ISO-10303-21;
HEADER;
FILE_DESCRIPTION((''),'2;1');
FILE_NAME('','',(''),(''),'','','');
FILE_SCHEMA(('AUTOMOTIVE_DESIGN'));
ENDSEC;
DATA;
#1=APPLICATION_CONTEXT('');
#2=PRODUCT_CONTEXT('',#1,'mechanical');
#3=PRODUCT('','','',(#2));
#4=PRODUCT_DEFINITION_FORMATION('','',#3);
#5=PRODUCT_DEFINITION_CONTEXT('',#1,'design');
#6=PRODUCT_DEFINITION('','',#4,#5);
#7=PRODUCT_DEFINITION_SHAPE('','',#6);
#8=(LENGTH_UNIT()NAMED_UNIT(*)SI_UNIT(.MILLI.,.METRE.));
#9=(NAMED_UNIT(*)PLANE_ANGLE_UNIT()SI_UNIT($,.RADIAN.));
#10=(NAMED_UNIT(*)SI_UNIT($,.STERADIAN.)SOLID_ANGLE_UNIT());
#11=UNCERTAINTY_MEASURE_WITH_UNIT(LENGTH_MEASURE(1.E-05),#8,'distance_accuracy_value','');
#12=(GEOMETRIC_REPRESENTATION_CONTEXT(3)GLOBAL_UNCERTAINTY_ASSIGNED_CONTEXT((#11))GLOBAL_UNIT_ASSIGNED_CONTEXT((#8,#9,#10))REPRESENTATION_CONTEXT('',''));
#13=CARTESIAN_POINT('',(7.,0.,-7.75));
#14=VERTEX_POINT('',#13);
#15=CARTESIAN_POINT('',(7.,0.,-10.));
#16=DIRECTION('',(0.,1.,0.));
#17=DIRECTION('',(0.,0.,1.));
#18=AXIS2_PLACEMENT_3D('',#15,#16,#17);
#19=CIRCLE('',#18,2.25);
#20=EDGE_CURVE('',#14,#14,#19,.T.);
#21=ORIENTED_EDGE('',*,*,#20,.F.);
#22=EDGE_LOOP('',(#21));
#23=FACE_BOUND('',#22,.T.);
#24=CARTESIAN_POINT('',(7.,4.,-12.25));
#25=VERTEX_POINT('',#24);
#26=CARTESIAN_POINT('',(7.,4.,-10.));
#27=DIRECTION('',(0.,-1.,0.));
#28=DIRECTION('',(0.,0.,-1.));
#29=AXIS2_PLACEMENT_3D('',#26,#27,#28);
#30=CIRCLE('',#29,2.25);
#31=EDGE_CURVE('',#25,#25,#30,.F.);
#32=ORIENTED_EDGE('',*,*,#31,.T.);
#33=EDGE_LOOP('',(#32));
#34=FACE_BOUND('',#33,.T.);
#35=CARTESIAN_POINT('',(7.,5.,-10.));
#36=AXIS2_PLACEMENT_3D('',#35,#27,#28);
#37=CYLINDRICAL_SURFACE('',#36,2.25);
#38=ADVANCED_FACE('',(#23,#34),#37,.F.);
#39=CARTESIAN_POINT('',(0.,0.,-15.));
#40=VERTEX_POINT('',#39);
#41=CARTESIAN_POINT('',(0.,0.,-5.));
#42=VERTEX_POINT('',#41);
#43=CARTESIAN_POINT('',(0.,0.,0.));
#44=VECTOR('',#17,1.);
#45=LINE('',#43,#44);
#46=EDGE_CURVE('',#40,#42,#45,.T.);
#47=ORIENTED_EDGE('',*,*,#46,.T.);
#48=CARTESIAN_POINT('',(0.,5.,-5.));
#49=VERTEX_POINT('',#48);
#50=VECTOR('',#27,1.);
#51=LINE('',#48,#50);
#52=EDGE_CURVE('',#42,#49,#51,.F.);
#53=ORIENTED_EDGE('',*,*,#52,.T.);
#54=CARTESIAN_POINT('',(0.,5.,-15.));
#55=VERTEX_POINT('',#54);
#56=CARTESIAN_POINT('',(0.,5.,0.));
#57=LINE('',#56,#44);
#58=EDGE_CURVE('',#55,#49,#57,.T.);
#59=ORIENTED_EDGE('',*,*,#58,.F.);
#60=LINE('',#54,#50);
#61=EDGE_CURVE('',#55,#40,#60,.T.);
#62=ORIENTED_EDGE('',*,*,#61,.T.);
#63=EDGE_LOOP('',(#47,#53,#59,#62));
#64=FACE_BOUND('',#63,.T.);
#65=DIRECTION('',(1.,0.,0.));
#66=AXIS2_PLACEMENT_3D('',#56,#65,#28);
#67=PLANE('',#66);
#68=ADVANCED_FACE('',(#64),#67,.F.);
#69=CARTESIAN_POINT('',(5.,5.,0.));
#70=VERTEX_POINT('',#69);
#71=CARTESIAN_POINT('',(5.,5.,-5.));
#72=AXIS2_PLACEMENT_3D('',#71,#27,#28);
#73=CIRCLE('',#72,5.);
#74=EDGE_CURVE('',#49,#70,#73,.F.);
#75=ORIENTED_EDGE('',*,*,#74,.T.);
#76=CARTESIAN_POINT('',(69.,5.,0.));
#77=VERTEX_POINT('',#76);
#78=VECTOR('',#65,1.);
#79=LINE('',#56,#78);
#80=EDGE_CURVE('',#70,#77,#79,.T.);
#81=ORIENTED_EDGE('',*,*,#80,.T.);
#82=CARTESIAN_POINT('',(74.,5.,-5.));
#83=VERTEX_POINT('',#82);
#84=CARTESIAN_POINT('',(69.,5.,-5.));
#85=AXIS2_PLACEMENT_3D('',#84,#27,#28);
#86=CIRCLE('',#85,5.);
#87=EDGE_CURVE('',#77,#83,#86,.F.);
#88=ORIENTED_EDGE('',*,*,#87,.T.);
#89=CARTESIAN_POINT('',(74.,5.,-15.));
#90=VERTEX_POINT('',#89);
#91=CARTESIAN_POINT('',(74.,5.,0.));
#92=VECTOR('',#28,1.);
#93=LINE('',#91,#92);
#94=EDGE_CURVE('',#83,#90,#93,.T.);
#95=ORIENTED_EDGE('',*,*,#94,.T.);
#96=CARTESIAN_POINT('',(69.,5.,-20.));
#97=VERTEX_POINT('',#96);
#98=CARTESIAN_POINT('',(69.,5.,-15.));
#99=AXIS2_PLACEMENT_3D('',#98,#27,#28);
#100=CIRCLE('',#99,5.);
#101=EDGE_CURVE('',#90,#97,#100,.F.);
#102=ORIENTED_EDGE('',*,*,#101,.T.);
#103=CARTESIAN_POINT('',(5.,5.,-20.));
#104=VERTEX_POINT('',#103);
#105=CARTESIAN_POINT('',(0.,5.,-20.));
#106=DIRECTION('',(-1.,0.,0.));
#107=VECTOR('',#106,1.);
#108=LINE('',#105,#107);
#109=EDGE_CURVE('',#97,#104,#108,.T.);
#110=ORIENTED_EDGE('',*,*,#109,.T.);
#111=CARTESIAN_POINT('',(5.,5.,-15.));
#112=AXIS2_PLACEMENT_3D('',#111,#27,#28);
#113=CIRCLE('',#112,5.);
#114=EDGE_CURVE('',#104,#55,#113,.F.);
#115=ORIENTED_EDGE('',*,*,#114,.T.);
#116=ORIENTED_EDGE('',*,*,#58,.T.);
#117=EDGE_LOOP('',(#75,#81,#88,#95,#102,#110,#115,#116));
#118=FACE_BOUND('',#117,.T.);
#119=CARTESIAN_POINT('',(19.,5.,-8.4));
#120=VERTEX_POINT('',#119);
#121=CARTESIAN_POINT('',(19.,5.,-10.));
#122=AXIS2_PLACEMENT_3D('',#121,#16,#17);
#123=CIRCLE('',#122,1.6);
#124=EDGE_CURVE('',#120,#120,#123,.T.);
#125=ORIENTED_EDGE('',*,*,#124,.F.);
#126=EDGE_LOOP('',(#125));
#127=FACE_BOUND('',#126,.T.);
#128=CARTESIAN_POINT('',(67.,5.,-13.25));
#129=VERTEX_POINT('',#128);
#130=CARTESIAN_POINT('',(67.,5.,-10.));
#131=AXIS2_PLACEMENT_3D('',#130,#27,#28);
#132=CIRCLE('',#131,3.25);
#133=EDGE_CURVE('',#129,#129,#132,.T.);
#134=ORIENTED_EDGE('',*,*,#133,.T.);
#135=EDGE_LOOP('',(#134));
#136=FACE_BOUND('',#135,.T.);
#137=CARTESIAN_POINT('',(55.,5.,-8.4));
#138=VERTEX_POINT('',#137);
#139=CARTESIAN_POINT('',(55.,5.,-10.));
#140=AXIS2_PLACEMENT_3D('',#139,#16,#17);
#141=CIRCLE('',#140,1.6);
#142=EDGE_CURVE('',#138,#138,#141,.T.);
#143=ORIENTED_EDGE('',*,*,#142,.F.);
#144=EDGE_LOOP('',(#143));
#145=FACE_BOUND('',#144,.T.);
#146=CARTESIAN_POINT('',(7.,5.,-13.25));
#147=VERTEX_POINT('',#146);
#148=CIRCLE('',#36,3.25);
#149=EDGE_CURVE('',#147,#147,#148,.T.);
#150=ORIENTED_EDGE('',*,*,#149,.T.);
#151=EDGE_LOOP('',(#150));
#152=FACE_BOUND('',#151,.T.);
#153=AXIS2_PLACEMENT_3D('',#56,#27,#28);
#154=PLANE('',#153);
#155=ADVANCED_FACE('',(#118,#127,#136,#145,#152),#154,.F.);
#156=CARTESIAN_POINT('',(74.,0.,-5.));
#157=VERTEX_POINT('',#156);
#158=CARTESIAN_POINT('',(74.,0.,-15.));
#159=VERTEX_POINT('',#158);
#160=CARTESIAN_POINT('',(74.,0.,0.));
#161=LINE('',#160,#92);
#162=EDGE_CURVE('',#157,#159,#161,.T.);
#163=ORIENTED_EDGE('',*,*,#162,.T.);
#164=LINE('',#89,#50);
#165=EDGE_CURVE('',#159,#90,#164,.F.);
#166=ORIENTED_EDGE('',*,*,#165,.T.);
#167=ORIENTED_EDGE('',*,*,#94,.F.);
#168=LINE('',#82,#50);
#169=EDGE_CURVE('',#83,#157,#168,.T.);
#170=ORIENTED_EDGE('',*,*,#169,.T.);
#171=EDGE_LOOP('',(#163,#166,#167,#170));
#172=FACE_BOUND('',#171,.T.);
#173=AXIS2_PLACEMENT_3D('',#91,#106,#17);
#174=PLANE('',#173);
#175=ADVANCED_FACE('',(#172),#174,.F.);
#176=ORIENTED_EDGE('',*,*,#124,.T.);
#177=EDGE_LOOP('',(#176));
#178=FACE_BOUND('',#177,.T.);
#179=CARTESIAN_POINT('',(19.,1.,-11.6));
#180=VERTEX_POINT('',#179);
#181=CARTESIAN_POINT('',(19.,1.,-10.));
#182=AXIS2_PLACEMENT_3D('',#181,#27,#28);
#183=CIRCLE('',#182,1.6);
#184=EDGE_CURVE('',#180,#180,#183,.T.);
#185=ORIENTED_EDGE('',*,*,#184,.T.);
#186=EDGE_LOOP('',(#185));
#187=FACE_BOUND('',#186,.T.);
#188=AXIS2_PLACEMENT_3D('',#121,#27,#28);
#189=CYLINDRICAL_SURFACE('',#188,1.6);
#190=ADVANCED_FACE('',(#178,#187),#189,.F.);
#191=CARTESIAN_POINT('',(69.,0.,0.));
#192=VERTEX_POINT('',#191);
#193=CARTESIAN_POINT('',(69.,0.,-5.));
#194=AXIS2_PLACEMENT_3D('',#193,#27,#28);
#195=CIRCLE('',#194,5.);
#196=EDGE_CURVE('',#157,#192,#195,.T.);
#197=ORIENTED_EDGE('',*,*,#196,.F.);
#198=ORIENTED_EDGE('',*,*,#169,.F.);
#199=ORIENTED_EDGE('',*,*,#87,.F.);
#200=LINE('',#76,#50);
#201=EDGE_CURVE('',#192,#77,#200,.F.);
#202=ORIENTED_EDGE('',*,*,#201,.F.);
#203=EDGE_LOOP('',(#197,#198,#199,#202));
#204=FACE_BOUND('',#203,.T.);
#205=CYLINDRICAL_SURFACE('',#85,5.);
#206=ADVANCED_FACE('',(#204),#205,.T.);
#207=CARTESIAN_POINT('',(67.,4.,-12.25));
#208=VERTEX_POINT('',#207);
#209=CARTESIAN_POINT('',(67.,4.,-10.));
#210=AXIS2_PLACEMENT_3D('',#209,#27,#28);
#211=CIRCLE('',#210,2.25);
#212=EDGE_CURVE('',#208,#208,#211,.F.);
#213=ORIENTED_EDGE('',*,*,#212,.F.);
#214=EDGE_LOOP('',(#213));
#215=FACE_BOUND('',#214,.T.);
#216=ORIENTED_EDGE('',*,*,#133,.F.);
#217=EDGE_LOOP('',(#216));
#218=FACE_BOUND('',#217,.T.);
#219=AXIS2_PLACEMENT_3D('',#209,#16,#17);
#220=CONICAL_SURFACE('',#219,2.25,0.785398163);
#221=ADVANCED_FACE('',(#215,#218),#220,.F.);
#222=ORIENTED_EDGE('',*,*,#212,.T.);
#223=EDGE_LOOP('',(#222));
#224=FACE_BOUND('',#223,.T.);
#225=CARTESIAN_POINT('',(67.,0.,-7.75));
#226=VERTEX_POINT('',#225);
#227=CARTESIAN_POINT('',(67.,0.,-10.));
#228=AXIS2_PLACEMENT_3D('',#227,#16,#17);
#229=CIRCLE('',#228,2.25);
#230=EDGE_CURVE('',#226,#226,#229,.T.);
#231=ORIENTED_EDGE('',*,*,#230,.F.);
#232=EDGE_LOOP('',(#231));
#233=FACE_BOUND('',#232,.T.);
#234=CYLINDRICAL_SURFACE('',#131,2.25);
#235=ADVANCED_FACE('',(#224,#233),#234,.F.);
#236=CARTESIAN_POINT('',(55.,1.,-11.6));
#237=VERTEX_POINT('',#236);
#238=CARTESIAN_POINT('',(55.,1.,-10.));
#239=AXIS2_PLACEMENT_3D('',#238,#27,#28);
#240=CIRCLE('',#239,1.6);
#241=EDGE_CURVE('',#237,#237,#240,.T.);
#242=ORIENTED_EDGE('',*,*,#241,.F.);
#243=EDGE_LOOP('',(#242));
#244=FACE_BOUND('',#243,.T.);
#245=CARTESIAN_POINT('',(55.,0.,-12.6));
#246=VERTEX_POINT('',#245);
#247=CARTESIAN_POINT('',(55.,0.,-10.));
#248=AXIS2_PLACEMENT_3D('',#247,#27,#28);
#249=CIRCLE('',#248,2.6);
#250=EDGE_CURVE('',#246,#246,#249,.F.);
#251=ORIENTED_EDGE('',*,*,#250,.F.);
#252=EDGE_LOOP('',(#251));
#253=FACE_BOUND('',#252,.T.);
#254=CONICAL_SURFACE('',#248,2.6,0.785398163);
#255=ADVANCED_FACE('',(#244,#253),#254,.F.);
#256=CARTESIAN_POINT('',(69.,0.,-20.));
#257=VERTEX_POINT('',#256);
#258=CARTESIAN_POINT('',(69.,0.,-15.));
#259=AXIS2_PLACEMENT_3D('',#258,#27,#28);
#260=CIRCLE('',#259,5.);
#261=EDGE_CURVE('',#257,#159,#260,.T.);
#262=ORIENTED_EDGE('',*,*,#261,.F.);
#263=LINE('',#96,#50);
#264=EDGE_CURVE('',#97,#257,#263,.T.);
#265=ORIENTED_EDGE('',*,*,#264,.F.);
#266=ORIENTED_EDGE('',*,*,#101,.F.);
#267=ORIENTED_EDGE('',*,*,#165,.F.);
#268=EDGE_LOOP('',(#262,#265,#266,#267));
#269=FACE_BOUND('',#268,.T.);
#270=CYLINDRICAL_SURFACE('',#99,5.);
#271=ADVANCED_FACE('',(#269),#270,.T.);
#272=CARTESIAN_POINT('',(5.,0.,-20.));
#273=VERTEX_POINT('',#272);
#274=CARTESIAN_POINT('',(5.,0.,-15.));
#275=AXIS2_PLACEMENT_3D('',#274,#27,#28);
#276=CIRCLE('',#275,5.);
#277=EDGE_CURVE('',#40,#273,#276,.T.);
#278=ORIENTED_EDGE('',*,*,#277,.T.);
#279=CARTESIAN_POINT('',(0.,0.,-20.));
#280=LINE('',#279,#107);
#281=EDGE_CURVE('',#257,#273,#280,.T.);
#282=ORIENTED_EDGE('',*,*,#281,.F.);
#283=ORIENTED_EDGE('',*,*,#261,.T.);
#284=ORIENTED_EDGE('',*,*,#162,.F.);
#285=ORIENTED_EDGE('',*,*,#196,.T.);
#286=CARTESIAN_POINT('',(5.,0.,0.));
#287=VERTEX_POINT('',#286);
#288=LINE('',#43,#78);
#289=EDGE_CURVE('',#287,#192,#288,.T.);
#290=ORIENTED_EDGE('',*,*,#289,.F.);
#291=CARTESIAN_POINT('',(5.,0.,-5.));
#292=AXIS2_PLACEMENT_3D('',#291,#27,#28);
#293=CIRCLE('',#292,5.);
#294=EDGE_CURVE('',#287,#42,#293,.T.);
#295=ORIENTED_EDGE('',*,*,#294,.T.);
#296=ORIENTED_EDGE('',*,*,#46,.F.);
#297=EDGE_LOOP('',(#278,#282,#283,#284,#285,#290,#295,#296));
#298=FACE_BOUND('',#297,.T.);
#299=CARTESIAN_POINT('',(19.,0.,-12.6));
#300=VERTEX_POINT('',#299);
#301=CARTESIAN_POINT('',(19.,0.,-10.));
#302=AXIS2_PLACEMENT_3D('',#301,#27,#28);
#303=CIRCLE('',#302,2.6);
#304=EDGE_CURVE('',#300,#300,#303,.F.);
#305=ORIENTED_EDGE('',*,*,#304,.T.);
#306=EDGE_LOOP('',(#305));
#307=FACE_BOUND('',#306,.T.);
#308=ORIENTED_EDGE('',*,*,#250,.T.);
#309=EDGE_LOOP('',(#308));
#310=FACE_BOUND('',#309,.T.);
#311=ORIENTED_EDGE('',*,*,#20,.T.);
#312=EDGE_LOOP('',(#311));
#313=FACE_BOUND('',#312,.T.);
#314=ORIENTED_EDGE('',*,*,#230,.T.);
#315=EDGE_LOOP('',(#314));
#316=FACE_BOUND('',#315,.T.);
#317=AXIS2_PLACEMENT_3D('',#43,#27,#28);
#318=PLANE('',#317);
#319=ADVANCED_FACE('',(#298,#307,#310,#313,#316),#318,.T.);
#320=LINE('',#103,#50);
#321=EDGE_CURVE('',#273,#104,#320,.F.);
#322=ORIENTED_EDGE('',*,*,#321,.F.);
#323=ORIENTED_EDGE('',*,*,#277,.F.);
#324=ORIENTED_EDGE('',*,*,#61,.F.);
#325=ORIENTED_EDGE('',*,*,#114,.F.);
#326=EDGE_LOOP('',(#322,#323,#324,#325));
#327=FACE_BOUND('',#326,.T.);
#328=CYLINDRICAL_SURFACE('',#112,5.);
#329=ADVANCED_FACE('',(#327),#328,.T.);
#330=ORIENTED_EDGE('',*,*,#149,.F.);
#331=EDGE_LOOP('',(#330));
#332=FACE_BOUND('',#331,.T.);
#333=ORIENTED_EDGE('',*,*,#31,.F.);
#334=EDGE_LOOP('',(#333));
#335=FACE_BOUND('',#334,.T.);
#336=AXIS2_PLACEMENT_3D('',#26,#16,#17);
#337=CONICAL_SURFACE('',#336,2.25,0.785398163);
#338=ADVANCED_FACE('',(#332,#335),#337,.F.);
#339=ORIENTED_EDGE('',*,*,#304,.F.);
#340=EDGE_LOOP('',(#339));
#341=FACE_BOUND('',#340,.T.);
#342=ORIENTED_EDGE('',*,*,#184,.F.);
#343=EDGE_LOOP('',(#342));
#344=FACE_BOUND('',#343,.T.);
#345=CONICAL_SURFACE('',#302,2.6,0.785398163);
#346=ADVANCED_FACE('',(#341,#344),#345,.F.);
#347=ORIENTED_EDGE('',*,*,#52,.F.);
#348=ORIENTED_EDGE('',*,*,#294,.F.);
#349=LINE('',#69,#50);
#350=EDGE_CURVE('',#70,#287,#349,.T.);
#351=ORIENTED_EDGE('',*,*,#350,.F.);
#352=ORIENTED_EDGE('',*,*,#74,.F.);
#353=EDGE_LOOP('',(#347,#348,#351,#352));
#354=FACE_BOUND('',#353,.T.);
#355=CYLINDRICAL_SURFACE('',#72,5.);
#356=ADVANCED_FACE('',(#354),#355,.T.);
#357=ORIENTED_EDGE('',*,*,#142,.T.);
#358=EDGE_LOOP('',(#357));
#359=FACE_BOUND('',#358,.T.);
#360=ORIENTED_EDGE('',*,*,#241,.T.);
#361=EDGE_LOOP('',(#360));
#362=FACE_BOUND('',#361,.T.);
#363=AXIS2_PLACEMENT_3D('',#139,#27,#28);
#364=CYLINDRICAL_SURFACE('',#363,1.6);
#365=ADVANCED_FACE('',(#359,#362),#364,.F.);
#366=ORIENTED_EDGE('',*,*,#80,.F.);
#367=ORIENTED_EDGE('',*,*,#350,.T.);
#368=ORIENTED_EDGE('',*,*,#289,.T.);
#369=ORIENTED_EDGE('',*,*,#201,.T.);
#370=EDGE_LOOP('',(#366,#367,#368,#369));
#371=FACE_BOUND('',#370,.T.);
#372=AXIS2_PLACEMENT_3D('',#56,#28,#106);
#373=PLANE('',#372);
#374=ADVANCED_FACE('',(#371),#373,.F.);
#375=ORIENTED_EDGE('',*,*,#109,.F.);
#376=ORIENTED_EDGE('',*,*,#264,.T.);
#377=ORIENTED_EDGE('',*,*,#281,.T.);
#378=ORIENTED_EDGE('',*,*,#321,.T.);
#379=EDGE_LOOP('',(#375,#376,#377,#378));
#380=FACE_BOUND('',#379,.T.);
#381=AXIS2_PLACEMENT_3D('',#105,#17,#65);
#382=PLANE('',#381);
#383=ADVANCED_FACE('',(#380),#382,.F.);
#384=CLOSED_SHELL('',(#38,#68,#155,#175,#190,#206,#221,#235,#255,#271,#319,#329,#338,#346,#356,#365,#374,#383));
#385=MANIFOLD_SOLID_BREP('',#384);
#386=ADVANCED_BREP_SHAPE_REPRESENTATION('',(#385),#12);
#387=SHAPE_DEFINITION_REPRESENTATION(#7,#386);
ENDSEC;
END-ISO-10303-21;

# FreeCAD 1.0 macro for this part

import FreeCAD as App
import Part
import Sketcher


def edges_at(feature, points):
    """Names of the edges that pass closest to the given points."""
    edges = feature.Shape.Edges
    near = lambda p: min(range(len(edges)), key=lambda i: edges[i].distToShape(Part.Vertex(*p))[0])
    return sorted({f"Edge{near(p) + 1}" for p in points})


def add_polygon(sketch, points):
    """Adds a closed chain of lines whose ends are joined by coincident constraints."""
    first, n = sketch.GeometryCount, len(points)
    for a, b in zip(points, points[1:] + points[:1]):
        sketch.addGeometry(Part.LineSegment(App.Vector(*a, 0), App.Vector(*b, 0)), False)
    for i in range(n):
        sketch.addConstraint(Sketcher.Constraint("Coincident", first + i, 2, first + (i + 1) % n, 1))

doc = App.newDocument("Part")
params = doc.addObject("Spreadsheet::Sheet", "Params")
for row, (alias, value) in enumerate([
    ("sketch1_diameter", "4.5 mm"),
    ("sketch1_diameter2", "3.2 mm"),
    ("sketch1_width", "74 mm"),
    ("sketch1_height", "20 mm"),
    ("pad1_length", "5 mm"),
    ("fillet_radius", "5 mm"),
    ("chamfer_size", "1 mm"),
    ("chamfer2_size", "1 mm"),
], start=1):
    params.set(f"A{row}", alias)
    params.set(f"B{row}", "=" + value)
    params.setAlias(f"B{row}", alias)

body = doc.addObject("PartDesign::Body", "Body")

# Sketch on XZ plane
sketch1 = body.newObject("Sketcher::SketchObject", "Sketch")
sketch1.AttachmentSupport = (doc.getObject("XZ_Plane"), [""])
sketch1.MapMode = "FlatFace"
add_polygon(sketch1, [(0, -20), (0, 0), (74, 0), (74, -20)])  # lines 0-3
sketch1.addGeometry(Part.Circle(App.Vector(7, -10, 0), App.Vector(0, 0, 1), 2.25), False)  # 4
sketch1.addGeometry(Part.Circle(App.Vector(19, -10, 0), App.Vector(0, 0, 1), 1.6), False)  # 5
sketch1.addGeometry(Part.Circle(App.Vector(55, -10, 0), App.Vector(0, 0, 1), 1.6), False)  # 6
sketch1.addGeometry(Part.Circle(App.Vector(67, -10, 0), App.Vector(0, 0, 1), 2.25), False)  # 7
sketch1.addConstraint(Sketcher.Constraint("Vertical", 0))
sketch1.addConstraint(Sketcher.Constraint("Horizontal", 1))
sketch1.addConstraint(Sketcher.Constraint("Vertical", 2))
sketch1.addConstraint(Sketcher.Constraint("Horizontal", 3))
sketch1.addConstraint(Sketcher.Constraint("Coincident", 0, 2, -1, 1))
sketch1.addConstraint(Sketcher.Constraint("Equal", 5, 6))
sketch1.addConstraint(Sketcher.Constraint("Equal", 4, 7))
sketch1.addConstraint(Sketcher.Constraint("Horizontal", 4, 3, 5, 3))
sketch1.addConstraint(Sketcher.Constraint("Horizontal", 5, 3, 6, 3))
sketch1.addConstraint(Sketcher.Constraint("Horizontal", 6, 3, 7, 3))
sketch1.addConstraint(Sketcher.Constraint("Diameter", 4, 4.5))
sketch1.addConstraint(Sketcher.Constraint("Diameter", 5, 3.2))
sketch1.addConstraint(Sketcher.Constraint("DistanceX", 1, 1, 1, 2, 74.0))
sketch1.addConstraint(Sketcher.Constraint("DistanceY", 0, 1, 0, 2, 20.0))
sketch1.addConstraint(Sketcher.Constraint("DistanceX", -1, 1, 4, 3, 7.0))
sketch1.addConstraint(Sketcher.Constraint("DistanceY", 4, 3, -1, 1, 10.0))
sketch1.addConstraint(Sketcher.Constraint("DistanceX", -1, 1, 5, 3, 19.0))
sketch1.addConstraint(Sketcher.Constraint("DistanceX", -1, 1, 6, 3, 55.0))
sketch1.addConstraint(Sketcher.Constraint("DistanceX", -1, 1, 7, 3, 67.0))
sketch1.setExpression("Constraints[14]", "Params.sketch1_diameter")
sketch1.setExpression("Constraints[15]", "Params.sketch1_diameter2")
sketch1.setExpression("Constraints[16]", "Params.sketch1_width")
sketch1.setExpression("Constraints[17]", "Params.sketch1_height")
pad1 = body.newObject("PartDesign::Pad", "Pad")
pad1.Profile = sketch1
pad1.setExpression("Length", "Params.pad1_length")
pad1.Reversed = True
doc.recompute()

fillet = body.newObject("PartDesign::Fillet", "Fillet")
fillet.Base = (pad1, edges_at(pad1, [
    (0, 2.5, -20),
    (74, 2.5, -20),
    (74, 2.5, 0),
    (0, 2.5, 0),
]))
fillet.setExpression("Radius", "Params.fillet_radius")
doc.recompute()

chamfer = body.newObject("PartDesign::Chamfer", "Chamfer")
chamfer.Base = (fillet, edges_at(fillet, [(4.75, 5, -10), (64.75, 5, -10)]))
chamfer.setExpression("Size", "Params.chamfer_size")
doc.recompute()

chamfer2 = body.newObject("PartDesign::Chamfer", "Chamfer001")
chamfer2.Base = (chamfer, edges_at(chamfer, [(17.4, 0, -10), (53.4, 0, -10)]))
chamfer2.setExpression("Size", "Params.chamfer2_size")

doc.recompute()
